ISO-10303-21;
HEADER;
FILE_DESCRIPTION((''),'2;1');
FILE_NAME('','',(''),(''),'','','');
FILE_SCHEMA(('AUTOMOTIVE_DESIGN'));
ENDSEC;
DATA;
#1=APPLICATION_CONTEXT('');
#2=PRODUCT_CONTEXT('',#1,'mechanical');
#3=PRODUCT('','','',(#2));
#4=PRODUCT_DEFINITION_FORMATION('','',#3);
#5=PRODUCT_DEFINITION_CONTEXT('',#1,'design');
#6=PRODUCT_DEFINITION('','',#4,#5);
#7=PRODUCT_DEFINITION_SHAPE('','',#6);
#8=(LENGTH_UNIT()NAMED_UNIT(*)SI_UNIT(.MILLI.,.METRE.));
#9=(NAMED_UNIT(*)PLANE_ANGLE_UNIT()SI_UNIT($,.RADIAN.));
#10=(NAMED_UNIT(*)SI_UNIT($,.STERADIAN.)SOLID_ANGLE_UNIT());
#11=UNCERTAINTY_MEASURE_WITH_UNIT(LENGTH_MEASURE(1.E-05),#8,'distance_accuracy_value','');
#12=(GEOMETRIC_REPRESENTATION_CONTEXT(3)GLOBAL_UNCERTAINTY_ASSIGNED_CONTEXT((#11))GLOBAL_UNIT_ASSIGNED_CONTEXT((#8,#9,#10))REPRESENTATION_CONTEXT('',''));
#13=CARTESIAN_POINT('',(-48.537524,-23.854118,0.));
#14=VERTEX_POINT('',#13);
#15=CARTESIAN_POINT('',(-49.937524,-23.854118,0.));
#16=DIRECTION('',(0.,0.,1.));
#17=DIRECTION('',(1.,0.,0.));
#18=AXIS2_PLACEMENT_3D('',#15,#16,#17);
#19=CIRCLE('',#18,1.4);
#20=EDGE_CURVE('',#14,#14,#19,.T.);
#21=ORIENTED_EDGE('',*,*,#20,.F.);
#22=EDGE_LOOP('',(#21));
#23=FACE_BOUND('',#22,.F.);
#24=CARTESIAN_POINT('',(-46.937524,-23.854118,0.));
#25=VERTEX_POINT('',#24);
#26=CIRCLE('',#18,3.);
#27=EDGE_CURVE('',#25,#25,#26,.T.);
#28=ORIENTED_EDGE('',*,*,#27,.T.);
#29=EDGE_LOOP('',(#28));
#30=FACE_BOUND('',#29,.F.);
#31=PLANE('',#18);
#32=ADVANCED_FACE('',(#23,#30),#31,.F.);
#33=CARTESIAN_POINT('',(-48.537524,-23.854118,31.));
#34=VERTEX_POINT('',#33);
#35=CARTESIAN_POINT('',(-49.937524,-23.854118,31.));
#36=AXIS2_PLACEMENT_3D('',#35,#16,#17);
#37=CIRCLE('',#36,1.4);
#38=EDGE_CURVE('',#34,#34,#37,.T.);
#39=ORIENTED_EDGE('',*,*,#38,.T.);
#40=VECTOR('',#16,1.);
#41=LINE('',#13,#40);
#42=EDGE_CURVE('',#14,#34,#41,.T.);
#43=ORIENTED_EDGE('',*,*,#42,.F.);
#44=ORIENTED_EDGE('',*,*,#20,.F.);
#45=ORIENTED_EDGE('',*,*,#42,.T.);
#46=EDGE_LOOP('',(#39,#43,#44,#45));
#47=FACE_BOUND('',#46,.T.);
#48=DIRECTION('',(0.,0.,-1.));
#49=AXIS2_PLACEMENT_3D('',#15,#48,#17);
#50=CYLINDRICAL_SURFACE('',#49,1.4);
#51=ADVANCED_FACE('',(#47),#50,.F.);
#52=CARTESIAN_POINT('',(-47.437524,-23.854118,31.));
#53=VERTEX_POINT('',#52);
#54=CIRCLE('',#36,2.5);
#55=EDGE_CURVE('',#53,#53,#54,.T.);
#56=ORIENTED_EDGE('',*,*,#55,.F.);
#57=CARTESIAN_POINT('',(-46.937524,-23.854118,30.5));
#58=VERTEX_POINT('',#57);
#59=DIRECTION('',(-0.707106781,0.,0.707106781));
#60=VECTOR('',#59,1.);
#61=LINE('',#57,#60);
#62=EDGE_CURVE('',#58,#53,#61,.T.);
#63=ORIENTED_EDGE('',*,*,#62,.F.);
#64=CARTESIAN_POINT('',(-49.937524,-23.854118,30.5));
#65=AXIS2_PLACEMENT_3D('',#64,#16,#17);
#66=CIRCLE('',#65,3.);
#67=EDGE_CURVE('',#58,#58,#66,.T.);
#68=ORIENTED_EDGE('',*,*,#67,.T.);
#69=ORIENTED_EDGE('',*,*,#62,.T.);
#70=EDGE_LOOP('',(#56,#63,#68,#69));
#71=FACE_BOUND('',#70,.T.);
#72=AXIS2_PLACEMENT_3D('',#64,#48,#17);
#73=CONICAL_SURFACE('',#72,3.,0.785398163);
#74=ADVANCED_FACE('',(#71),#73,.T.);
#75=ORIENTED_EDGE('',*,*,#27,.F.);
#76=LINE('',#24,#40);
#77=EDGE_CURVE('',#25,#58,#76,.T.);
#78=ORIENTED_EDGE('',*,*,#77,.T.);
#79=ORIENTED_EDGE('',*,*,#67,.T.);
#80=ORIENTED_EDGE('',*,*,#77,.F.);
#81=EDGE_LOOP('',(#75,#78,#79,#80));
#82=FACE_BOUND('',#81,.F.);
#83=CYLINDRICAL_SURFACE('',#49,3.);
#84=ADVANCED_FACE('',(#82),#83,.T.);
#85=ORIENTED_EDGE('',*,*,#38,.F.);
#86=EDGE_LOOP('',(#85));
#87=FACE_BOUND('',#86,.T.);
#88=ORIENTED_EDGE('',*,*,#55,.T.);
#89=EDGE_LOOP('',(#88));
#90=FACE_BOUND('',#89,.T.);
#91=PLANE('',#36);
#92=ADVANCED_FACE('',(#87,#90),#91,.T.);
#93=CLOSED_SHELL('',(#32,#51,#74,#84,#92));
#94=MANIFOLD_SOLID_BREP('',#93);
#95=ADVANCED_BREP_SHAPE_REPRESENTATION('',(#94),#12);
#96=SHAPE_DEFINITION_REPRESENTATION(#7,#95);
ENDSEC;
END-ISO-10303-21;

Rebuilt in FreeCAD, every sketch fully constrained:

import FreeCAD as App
import Part
import Sketcher


def edges_at(feature, points):
    """Names of the edges that pass closest to the given points."""
    edges = feature.Shape.Edges
    near = lambda p: min(range(len(edges)), key=lambda i: edges[i].distToShape(Part.Vertex(*p))[0])
    return sorted({f"Edge{near(p) + 1}" for p in points})

doc = App.newDocument("Part")
body = doc.addObject("PartDesign::Body", "Body")

sketch1 = body.newObject("Sketcher::SketchObject", "Sketch")
sketch1.AttachmentSupport = (doc.getObject("XY_Plane"), [""])
sketch1.MapMode = "FlatFace"
sketch1.addGeometry([
    Part.Circle(App.Vector(-49.9, -23.9, 0), App.Vector(0, 0, 1), 3),
    Part.Circle(App.Vector(-49.9, -23.9, 0), App.Vector(0, 0, 1), 1.4),
], False)
sketch1.addConstraint([
    Sketcher.Constraint("Coincident", 1, 3, 0, 3),
    Sketcher.Constraint("Diameter", 0, 6.0),
    Sketcher.Constraint("Diameter", 1, 2.8),
    Sketcher.Constraint("DistanceX", 0, 3, -1, 1, 49.937524),
    Sketcher.Constraint("DistanceY", 0, 3, -1, 1, 23.854118),
])
pad1 = body.newObject("PartDesign::Pad", "Pad")
pad1.Profile = sketch1
pad1.Length = 31
doc.recompute()

chamfer = body.newObject("PartDesign::Chamfer", "Chamfer")
chamfer.Base = (pad1, edges_at(pad1, [(-52.938, -23.854, 31)]))
chamfer.Size = 0.5

doc.recompute()
